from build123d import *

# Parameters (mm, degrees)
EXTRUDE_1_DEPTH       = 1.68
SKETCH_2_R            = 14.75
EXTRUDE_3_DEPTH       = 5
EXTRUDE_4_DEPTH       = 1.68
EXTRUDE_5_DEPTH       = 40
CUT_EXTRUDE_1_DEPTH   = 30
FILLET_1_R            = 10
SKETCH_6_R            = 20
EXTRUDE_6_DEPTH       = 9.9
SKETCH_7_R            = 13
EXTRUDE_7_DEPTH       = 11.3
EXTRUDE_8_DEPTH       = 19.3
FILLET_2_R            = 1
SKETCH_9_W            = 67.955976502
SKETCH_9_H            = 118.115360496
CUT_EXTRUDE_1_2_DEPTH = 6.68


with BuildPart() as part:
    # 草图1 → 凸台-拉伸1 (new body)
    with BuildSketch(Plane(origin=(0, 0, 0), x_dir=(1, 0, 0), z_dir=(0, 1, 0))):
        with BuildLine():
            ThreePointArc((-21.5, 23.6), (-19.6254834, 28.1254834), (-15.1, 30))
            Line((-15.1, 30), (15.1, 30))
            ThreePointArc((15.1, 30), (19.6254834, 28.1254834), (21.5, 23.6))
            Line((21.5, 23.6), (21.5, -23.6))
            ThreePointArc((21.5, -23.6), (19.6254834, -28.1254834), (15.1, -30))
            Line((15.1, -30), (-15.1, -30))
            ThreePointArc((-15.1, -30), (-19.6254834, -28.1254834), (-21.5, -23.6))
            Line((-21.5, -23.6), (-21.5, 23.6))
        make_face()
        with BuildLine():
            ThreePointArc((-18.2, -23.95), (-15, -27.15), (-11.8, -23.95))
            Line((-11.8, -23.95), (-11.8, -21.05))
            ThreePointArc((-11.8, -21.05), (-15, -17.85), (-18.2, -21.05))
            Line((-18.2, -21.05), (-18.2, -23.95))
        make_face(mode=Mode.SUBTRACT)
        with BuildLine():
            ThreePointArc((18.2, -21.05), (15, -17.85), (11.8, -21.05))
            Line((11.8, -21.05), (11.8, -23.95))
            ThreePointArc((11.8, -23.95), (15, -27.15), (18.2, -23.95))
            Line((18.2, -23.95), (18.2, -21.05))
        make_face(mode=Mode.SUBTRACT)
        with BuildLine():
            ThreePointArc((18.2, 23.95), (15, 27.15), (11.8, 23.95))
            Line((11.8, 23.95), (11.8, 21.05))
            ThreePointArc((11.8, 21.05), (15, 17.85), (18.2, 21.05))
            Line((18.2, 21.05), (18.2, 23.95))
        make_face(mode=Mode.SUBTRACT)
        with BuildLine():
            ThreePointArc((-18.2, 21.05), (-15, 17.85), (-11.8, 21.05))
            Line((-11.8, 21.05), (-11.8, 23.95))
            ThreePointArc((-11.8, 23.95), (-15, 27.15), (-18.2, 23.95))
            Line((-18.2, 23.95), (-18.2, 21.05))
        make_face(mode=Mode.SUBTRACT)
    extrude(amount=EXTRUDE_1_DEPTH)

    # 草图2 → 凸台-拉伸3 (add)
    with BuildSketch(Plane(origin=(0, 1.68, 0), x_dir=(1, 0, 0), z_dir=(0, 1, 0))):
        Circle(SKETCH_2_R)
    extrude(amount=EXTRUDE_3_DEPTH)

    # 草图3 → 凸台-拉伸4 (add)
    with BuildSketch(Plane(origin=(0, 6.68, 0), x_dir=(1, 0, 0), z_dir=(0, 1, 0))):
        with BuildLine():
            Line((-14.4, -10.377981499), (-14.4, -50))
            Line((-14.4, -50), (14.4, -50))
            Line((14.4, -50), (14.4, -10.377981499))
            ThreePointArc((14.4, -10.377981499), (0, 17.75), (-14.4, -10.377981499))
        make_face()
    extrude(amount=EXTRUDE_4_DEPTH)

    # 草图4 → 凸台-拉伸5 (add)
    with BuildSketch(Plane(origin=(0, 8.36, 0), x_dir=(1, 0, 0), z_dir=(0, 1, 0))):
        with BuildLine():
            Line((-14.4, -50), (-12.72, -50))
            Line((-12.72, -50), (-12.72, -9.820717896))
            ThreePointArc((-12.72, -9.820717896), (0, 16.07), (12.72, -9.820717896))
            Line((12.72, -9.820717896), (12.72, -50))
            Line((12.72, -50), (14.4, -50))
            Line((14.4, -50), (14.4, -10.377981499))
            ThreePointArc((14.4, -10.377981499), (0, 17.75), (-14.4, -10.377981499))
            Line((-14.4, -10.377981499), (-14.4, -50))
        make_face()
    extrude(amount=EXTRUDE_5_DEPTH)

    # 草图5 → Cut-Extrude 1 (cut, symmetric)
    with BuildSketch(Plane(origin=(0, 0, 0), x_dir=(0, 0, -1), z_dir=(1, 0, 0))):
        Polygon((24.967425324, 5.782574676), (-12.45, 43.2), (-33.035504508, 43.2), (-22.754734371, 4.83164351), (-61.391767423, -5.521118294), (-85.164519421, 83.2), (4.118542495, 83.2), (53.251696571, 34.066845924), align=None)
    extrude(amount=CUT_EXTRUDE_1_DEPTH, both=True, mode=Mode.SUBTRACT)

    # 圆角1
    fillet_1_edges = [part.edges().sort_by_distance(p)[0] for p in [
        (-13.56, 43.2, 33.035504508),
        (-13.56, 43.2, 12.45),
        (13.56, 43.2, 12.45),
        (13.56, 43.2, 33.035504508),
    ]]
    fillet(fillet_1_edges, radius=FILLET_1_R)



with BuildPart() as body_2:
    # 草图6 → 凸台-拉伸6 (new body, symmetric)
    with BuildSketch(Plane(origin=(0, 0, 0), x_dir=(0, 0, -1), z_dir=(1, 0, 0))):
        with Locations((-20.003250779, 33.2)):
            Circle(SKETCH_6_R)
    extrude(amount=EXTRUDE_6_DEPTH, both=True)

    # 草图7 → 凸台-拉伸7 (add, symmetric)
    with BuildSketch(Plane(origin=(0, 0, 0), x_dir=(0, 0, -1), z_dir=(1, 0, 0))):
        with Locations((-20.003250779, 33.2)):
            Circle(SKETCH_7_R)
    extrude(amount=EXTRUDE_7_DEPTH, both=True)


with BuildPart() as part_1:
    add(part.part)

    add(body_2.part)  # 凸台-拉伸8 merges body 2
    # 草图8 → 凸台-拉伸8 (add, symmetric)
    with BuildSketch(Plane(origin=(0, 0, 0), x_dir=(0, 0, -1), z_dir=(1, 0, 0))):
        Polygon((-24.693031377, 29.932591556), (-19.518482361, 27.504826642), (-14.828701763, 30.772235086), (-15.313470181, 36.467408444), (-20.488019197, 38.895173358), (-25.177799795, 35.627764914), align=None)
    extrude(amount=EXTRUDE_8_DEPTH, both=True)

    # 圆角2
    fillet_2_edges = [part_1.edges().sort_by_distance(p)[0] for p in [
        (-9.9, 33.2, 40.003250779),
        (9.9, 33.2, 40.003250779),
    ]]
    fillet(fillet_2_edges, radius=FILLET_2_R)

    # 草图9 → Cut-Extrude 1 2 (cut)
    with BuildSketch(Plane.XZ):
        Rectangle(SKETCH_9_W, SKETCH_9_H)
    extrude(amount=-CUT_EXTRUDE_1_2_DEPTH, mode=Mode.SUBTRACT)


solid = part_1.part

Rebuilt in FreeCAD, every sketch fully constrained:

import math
import FreeCAD as App
import Part
import Sketcher
Q = App.Units.Quantity


def edges_at(feature, points):
    """Names of the edges that pass closest to the given points."""
    edges = feature.Shape.Edges
    near = lambda p: min(range(len(edges)), key=lambda i: edges[i].distToShape(Part.Vertex(*p))[0])
    return sorted({f"Edge{near(p) + 1}" for p in points})


def add_polygon(sketch, points):
    """Adds a closed chain of lines whose ends are joined by coincident constraints."""
    first, n = sketch.GeometryCount, len(points)
    for a, b in zip(points, points[1:] + points[:1]):
        sketch.addGeometry(Part.LineSegment(App.Vector(*a, 0), App.Vector(*b, 0)), False)
    for i in range(n):
        sketch.addConstraint(Sketcher.Constraint("Coincident", first + i, 2, first + (i + 1) % n, 1))

doc = App.newDocument("Part")
params = doc.addObject("Spreadsheet::Sheet", "Params")
for row, (alias, value) in enumerate([
    ("sketch1_radius", "6.4 mm"),
    ("sketch1_radius2", "3.2 mm"),
    ("sketch1_width", "30.2 mm"),
    ("sketch1_height", "47.2 mm"),
    ("sketch1_height2", "2.9 mm"),
    ("pad1_length", "1.68 mm"),
    ("sketch2_diameter", "29.5 mm"),
    ("pad2_length", "5 mm"),
    ("sketch3_radius", "17.75 mm"),
    ("sketch3_width", "28.8 mm"),
    ("pad3_length", "1.68 mm"),
    ("sketch4_radius", "16.07 mm"),
    ("sketch4_radius2", "17.75 mm"),
    ("sketch4_width", "1.68 mm"),
    ("pad4_length", "40 mm"),
    ("sketch5_length", "40 mm"),
    ("pocket1_length", "60 mm"),
    ("fillet_radius", "10 mm"),
    ("sketch6_diameter", "40 mm"),
    ("pad5_length", "19.8 mm"),
    ("sketch7_diameter", "26 mm"),
    ("pad6_length", "22.6 mm"),
    ("pad7_length", "38.6 mm"),
    ("fillet2_radius", "1 mm"),
    ("pocket2_length", "6.68 mm"),
], start=1):
    params.set(f"A{row}", alias)
    params.set(f"B{row}", "=" + value)
    params.setAlias(f"B{row}", alias)

body = doc.addObject("PartDesign::Body", "Body")

sketch1 = body.newObject("Sketcher::SketchObject", "Sketch")
sketch1.AttachmentSupport = (doc.getObject("XZ_Plane"), [""])
sketch1.MapMode = "FlatFace"
sketch1.addGeometry(Part.ArcOfCircle(Part.Circle(App.Vector(-15.1, -23.6, 0), App.Vector(0, 0, 1), 6.4), math.radians(180), math.radians(270)), False)
sketch1.addGeometry(Part.LineSegment(App.Vector(-21.5, -23.6, 0), App.Vector(-21.5, 23.6, 0)), False)
sketch1.addGeometry(Part.ArcOfCircle(Part.Circle(App.Vector(-15.1, 23.6, 0), App.Vector(0, 0, 1), 6.4), math.radians(90), math.radians(180)), False)
sketch1.addGeometry(Part.LineSegment(App.Vector(-15.1, 30, 0), App.Vector(15.1, 30, 0)), False)
sketch1.addGeometry(Part.ArcOfCircle(Part.Circle(App.Vector(15.1, 23.6, 0), App.Vector(0, 0, 1), 6.4), math.radians(0), math.radians(90)), False)
sketch1.addGeometry(Part.LineSegment(App.Vector(21.5, 23.6, 0), App.Vector(21.5, -23.6, 0)), False)
sketch1.addGeometry(Part.ArcOfCircle(Part.Circle(App.Vector(15.1, -23.6, 0), App.Vector(0, 0, 1), 6.4), math.radians(-90), math.radians(0)), False)
sketch1.addGeometry(Part.LineSegment(App.Vector(15.1, -30, 0), App.Vector(-15.1, -30, 0)), False)
sketch1.addGeometry(Part.LineSegment(App.Vector(18.2, 21.1, 0), App.Vector(18.2, 23.9, 0)), False)
sketch1.addGeometry(Part.ArcOfCircle(Part.Circle(App.Vector(15, 23.9, 0), App.Vector(0, 0, 1), 3.2), math.radians(0), math.radians(180)), False)
sketch1.addGeometry(Part.LineSegment(App.Vector(11.8, 23.9, 0), App.Vector(11.8, 21.1, 0)), False)
sketch1.addGeometry(Part.ArcOfCircle(Part.Circle(App.Vector(15, 21.1, 0), App.Vector(0, 0, 1), 3.2), math.radians(180), math.radians(360)), False)
sketch1.addGeometry(Part.LineSegment(App.Vector(-18.2, 23.9, 0), App.Vector(-18.2, 21.1, 0)), False)
sketch1.addGeometry(Part.ArcOfCircle(Part.Circle(App.Vector(-15, 21.1, 0), App.Vector(0, 0, 1), 3.2), math.radians(180), math.radians(360)), False)
sketch1.addGeometry(Part.LineSegment(App.Vector(-11.8, 21.1, 0), App.Vector(-11.8, 23.9, 0)), False)
sketch1.addGeometry(Part.ArcOfCircle(Part.Circle(App.Vector(-15, 23.9, 0), App.Vector(0, 0, 1), 3.2), math.radians(0), math.radians(180)), False)
sketch1.addGeometry(Part.LineSegment(App.Vector(18.2, -23.9, 0), App.Vector(18.2, -21.1, 0)), False)
sketch1.addGeometry(Part.ArcOfCircle(Part.Circle(App.Vector(15, -21.1, 0), App.Vector(0, 0, 1), 3.2), math.radians(0), math.radians(180)), False)
sketch1.addGeometry(Part.LineSegment(App.Vector(11.8, -21.1, 0), App.Vector(11.8, -23.9, 0)), False)
sketch1.addGeometry(Part.ArcOfCircle(Part.Circle(App.Vector(15, -23.9, 0), App.Vector(0, 0, 1), 3.2), math.radians(180), math.radians(360)), False)
sketch1.addGeometry(Part.LineSegment(App.Vector(-18.2, -21.1, 0), App.Vector(-18.2, -23.9, 0)), False)
sketch1.addGeometry(Part.ArcOfCircle(Part.Circle(App.Vector(-15, -23.9, 0), App.Vector(0, 0, 1), 3.2), math.radians(180), math.radians(360)), False)
sketch1.addGeometry(Part.LineSegment(App.Vector(-11.8, -23.9, 0), App.Vector(-11.8, -21.1, 0)), False)
sketch1.addGeometry(Part.ArcOfCircle(Part.Circle(App.Vector(-15, -21.1, 0), App.Vector(0, 0, 1), 3.2), math.radians(0), math.radians(180)), False)
sketch1.addConstraint(Sketcher.Constraint("Tangent", 0, 1, 1, 1))
sketch1.addConstraint(Sketcher.Constraint("Tangent", 1, 2, 2, 2))
sketch1.addConstraint(Sketcher.Constraint("Tangent", 2, 1, 3, 1))
sketch1.addConstraint(Sketcher.Constraint("Tangent", 3, 2, 4, 2))
sketch1.addConstraint(Sketcher.Constraint("Tangent", 4, 1, 5, 1))
sketch1.addConstraint(Sketcher.Constraint("Tangent", 5, 2, 6, 2))
sketch1.addConstraint(Sketcher.Constraint("Tangent", 6, 1, 7, 1))
sketch1.addConstraint(Sketcher.Constraint("Tangent", 7, 2, 0, 2))
sketch1.addConstraint(Sketcher.Constraint("Tangent", 8, 2, 9, 1))
sketch1.addConstraint(Sketcher.Constraint("Tangent", 9, 2, 10, 1))
sketch1.addConstraint(Sketcher.Constraint("Tangent", 10, 2, 11, 1))
sketch1.addConstraint(Sketcher.Constraint("Tangent", 11, 2, 8, 1))
sketch1.addConstraint(Sketcher.Constraint("Tangent", 12, 2, 13, 1))
sketch1.addConstraint(Sketcher.Constraint("Tangent", 13, 2, 14, 1))
sketch1.addConstraint(Sketcher.Constraint("Tangent", 14, 2, 15, 1))
sketch1.addConstraint(Sketcher.Constraint("Tangent", 15, 2, 12, 1))
sketch1.addConstraint(Sketcher.Constraint("Tangent", 16, 2, 17, 1))
sketch1.addConstraint(Sketcher.Constraint("Tangent", 17, 2, 18, 1))
sketch1.addConstraint(Sketcher.Constraint("Tangent", 18, 2, 19, 1))
sketch1.addConstraint(Sketcher.Constraint("Tangent", 19, 2, 16, 1))
sketch1.addConstraint(Sketcher.Constraint("Tangent", 20, 2, 21, 1))
sketch1.addConstraint(Sketcher.Constraint("Tangent", 21, 2, 22, 1))
sketch1.addConstraint(Sketcher.Constraint("Tangent", 22, 2, 23, 1))
sketch1.addConstraint(Sketcher.Constraint("Tangent", 23, 2, 20, 1))
sketch1.addConstraint(Sketcher.Constraint("Vertical", 1))
sketch1.addConstraint(Sketcher.Constraint("Horizontal", 3))
sketch1.addConstraint(Sketcher.Constraint("Vertical", 5))
sketch1.addConstraint(Sketcher.Constraint("Horizontal", 7))
sketch1.addConstraint(Sketcher.Constraint("Vertical", 8))
sketch1.addConstraint(Sketcher.Constraint("Vertical", 10))
sketch1.addConstraint(Sketcher.Constraint("Vertical", 12))
sketch1.addConstraint(Sketcher.Constraint("Vertical", 14))
sketch1.addConstraint(Sketcher.Constraint("Vertical", 16))
sketch1.addConstraint(Sketcher.Constraint("Vertical", 18))
sketch1.addConstraint(Sketcher.Constraint("Vertical", 20))
sketch1.addConstraint(Sketcher.Constraint("Vertical", 22))
sketch1.addConstraint(Sketcher.Constraint("Equal", 0, 2))
sketch1.addConstraint(Sketcher.Constraint("Equal", 2, 4))
sketch1.addConstraint(Sketcher.Constraint("Equal", 4, 6))
sketch1.addConstraint(Sketcher.Constraint("Equal", 11, 13))
sketch1.addConstraint(Sketcher.Constraint("Equal", 15, 17))
sketch1.addConstraint(Sketcher.Constraint("Equal", 19, 21))
sketch1.addConstraint(Sketcher.Constraint("Symmetric", 0, 3, 4, 3, -1, 1))
sketch1.addConstraint(Sketcher.Constraint("Symmetric", 13, 3, 17, 3, -1, 1))
sketch1.addConstraint(Sketcher.Constraint("Symmetric", 9, 3, 21, 3, -1, 1))
sketch1.addConstraint(Sketcher.Constraint("Symmetric", 11, 3, 13, 3, -2))
sketch1.addConstraint(Sketcher.Constraint("Horizontal", 9, 3, 15, 3))
sketch1.addConstraint(Sketcher.Constraint("Horizontal", 19, 3, 21, 3))
sketch1.addConstraint(Sketcher.Constraint("Horizontal", 17, 3, 23, 3))
sketch1.addConstraint(Sketcher.Constraint("Radius", 0, 6.4))
sketch1.addConstraint(Sketcher.Constraint("Radius", 9, 3.2))
sketch1.addConstraint(Sketcher.Constraint("DistanceX", 3, 1, 3, 2, 30.2))
sketch1.addConstraint(Sketcher.Constraint("DistanceY", 1, 1, 1, 2, 47.2))
sketch1.addConstraint(Sketcher.Constraint("DistanceY", 8, 1, 8, 2, 2.9))
sketch1.addConstraint(Sketcher.Constraint("DistanceX", -1, 1, 9, 3, 15.0))
sketch1.addConstraint(Sketcher.Constraint("DistanceY", 17, 3, 9, 3, 45.0))
sketch1.setExpression("Constraints[49]", "Params.sketch1_radius")
sketch1.setExpression("Constraints[50]", "Params.sketch1_radius2")
sketch1.setExpression("Constraints[51]", "Params.sketch1_width")
sketch1.setExpression("Constraints[52]", "Params.sketch1_height")
sketch1.setExpression("Constraints[53]", "Params.sketch1_height2")
pad1 = body.newObject("PartDesign::Pad", "Pad")
pad1.Profile = sketch1
pad1.setExpression("Length", "Params.pad1_length")
pad1.Reversed = True

sketch2 = body.newObject("Sketcher::SketchObject", "Sketch001")
sketch2.AttachmentSupport = (doc.getObject("XZ_Plane"), [""])
sketch2.MapMode = "FlatFace"
sketch2.AttachmentOffset = App.Placement(App.Vector(0, 0, -1.68), App.Rotation())
sketch2.addGeometry(Part.Circle(App.Vector(0, 0, 0), App.Vector(0, 0, 1), 15), False)
sketch2.addConstraint(Sketcher.Constraint("Coincident", 0, 3, -1, 1))
sketch2.addConstraint(Sketcher.Constraint("Diameter", 0, 29.5))
sketch2.setExpression("Constraints[1]", "Params.sketch2_diameter")
pad2 = body.newObject("PartDesign::Pad", "Pad001")
pad2.Profile = sketch2
pad2.setExpression("Length", "Params.pad2_length")
pad2.Reversed = True

sketch3 = body.newObject("Sketcher::SketchObject", "Sketch002")
sketch3.AttachmentSupport = (doc.getObject("XZ_Plane"), [""])
sketch3.MapMode = "FlatFace"
sketch3.AttachmentOffset = App.Placement(App.Vector(0, 0, -6.68), App.Rotation())
sketch3.addGeometry(Part.LineSegment(App.Vector(-14, 10, 0), App.Vector(-14, 50, 0)), False)
sketch3.addGeometry(Part.LineSegment(App.Vector(-14, 50, 0), App.Vector(14, 50, 0)), False)
sketch3.addGeometry(Part.LineSegment(App.Vector(14, 50, 0), App.Vector(14, 10, 0)), False)
sketch3.addGeometry(Part.ArcOfCircle(Part.Circle(App.Vector(0, 0, 0), App.Vector(0, 0, 1), 18), math.radians(144), math.radians(396)), False)
sketch3.addConstraint(Sketcher.Constraint("Coincident", 0, 2, 1, 1))
sketch3.addConstraint(Sketcher.Constraint("Coincident", 1, 2, 2, 1))
sketch3.addConstraint(Sketcher.Constraint("Coincident", 2, 2, 3, 2))
sketch3.addConstraint(Sketcher.Constraint("Coincident", 3, 1, 0, 1))
sketch3.addConstraint(Sketcher.Constraint("Vertical", 0))
sketch3.addConstraint(Sketcher.Constraint("Horizontal", 1))
sketch3.addConstraint(Sketcher.Constraint("Vertical", 2))
sketch3.addConstraint(Sketcher.Constraint("Coincident", 3, 3, -1, 1))
sketch3.addConstraint(Sketcher.Constraint("Horizontal", 2, 2, 3, 1))
sketch3.addConstraint(Sketcher.Constraint("Radius", 3, 17.75))
sketch3.addConstraint(Sketcher.Constraint("DistanceX", 1, 1, 1, 2, 28.8))
sketch3.addConstraint(Sketcher.Constraint("DistanceY", -1, 1, 0, 2, 50.0))
sketch3.setExpression("Constraints[9]", "Params.sketch3_radius")
sketch3.setExpression("Constraints[10]", "Params.sketch3_width")
pad3 = body.newObject("PartDesign::Pad", "Pad002")
pad3.Profile = sketch3
pad3.setExpression("Length", "Params.pad3_length")
pad3.Reversed = True

sketch4 = body.newObject("Sketcher::SketchObject", "Sketch003")
sketch4.AttachmentSupport = (doc.getObject("XZ_Plane"), [""])
sketch4.MapMode = "FlatFace"
sketch4.AttachmentOffset = App.Placement(App.Vector(0, 0, -8.36), App.Rotation())
sketch4.addGeometry(Part.LineSegment(App.Vector(-14.4, 50, 0), App.Vector(-12.7, 50, 0)), False)
sketch4.addGeometry(Part.LineSegment(App.Vector(-12.7, 50, 0), App.Vector(-12.7, 9.8, 0)), False)
sketch4.addGeometry(Part.ArcOfCircle(Part.Circle(App.Vector(0, 0, 0), App.Vector(0, 0, 1), 16.1), math.radians(142), math.radians(398)), False)
sketch4.addGeometry(Part.LineSegment(App.Vector(12.7, 9.8, 0), App.Vector(12.7, 50, 0)), False)
sketch4.addGeometry(Part.LineSegment(App.Vector(12.7, 50, 0), App.Vector(14.4, 50, 0)), False)
sketch4.addGeometry(Part.LineSegment(App.Vector(14.4, 50, 0), App.Vector(14.4, 10.4, 0)), False)
sketch4.addGeometry(Part.ArcOfCircle(Part.Circle(App.Vector(0, 0, 0), App.Vector(0, 0, 1), 17.8), math.radians(144), math.radians(396)), False)
sketch4.addGeometry(Part.LineSegment(App.Vector(-14.4, 10.4, 0), App.Vector(-14.4, 50, 0)), False)
sketch4.addConstraint(Sketcher.Constraint("Coincident", 0, 2, 1, 1))
sketch4.addConstraint(Sketcher.Constraint("Coincident", 1, 2, 2, 1))
sketch4.addConstraint(Sketcher.Constraint("Coincident", 2, 2, 3, 1))
sketch4.addConstraint(Sketcher.Constraint("Coincident", 3, 2, 4, 1))
sketch4.addConstraint(Sketcher.Constraint("Coincident", 4, 2, 5, 1))
sketch4.addConstraint(Sketcher.Constraint("Coincident", 5, 2, 6, 2))
sketch4.addConstraint(Sketcher.Constraint("Coincident", 6, 1, 7, 1))
sketch4.addConstraint(Sketcher.Constraint("Coincident", 7, 2, 0, 1))
sketch4.addConstraint(Sketcher.Constraint("Horizontal", 0))
sketch4.addConstraint(Sketcher.Constraint("Vertical", 1))
sketch4.addConstraint(Sketcher.Constraint("Vertical", 3))
sketch4.addConstraint(Sketcher.Constraint("Horizontal", 4))
sketch4.addConstraint(Sketcher.Constraint("Vertical", 5))
sketch4.addConstraint(Sketcher.Constraint("Vertical", 7))
sketch4.addConstraint(Sketcher.Constraint("Coincident", 2, 3, -1, 1))
sketch4.addConstraint(Sketcher.Constraint("Coincident", 6, 3, -1, 1))
sketch4.addConstraint(Sketcher.Constraint("Symmetric", 0, 2, 3, 2, -2))
sketch4.addConstraint(Sketcher.Constraint("Horizontal", 5, 2, 6, 1))
sketch4.addConstraint(Sketcher.Constraint("Radius", 2, 16.07))
sketch4.addConstraint(Sketcher.Constraint("Radius", 6, 17.75))
sketch4.addConstraint(Sketcher.Constraint("DistanceY", -1, 1, 0, 2, 50.0))
sketch4.addConstraint(Sketcher.Constraint("DistanceX", 0, 1, 0, 2, 1.68))
sketch4.addConstraint(Sketcher.Constraint("DistanceX", -1, 1, 4, 2, 14.4))
sketch4.setExpression("Constraints[18]", "Params.sketch4_radius")
sketch4.setExpression("Constraints[19]", "Params.sketch4_radius2")
sketch4.setExpression("Constraints[21]", "Params.sketch4_width")
pad4 = body.newObject("PartDesign::Pad", "Pad003")
pad4.Profile = sketch4
pad4.setExpression("Length", "Params.pad4_length")
pad4.Reversed = True

sketch5 = body.newObject("Sketcher::SketchObject", "Sketch004")
sketch5.AttachmentSupport = (doc.getObject("YZ_Plane"), [""])
sketch5.MapMode = "FlatFace"
add_polygon(sketch5, [(43, 12), (6, -25), (34, -53), (83, -4), (83, 85), (-6, 61), (5, 23), (43, 33)])
sketch5.addConstraint(Sketcher.Constraint("Vertical", 3))
sketch5.addConstraint(Sketcher.Constraint("Vertical", 7))
sketch5.addConstraint(Sketcher.Constraint("Perpendicular", 0, 1))
sketch5.addConstraint(Sketcher.Constraint("Perpendicular", 1, 2))
sketch5.addConstraint(Sketcher.Constraint("Perpendicular", 4, 5))
sketch5.addConstraint(Sketcher.Constraint("Perpendicular", 5, 6))
sketch5.addConstraint(Sketcher.Constraint("Equal", 1, 5))
sketch5.addConstraint(Sketcher.Constraint("Angle", 0, Q("-135 deg")))
sketch5.addConstraint(Sketcher.Constraint("Angle", 4, Q("-165 deg")))
sketch5.addConstraint(Sketcher.Constraint("Distance", 1, 40.0))
sketch5.addConstraint(Sketcher.Constraint("DistanceX", 6, 2, 2, 2, 40.0))
sketch5.addConstraint(Sketcher.Constraint("DistanceX", -1, 1, 2, 2, 83.2))
sketch5.addConstraint(Sketcher.Constraint("DistanceY", -1, 1, 7, 2, 12.45))
sketch5.addConstraint(Sketcher.Constraint("DistanceY", 3, 1, 3, 2, 89.283062))
sketch5.addConstraint(Sketcher.Constraint("Distance", 0, 52.91623))
sketch5.addConstraint(Sketcher.Constraint("Distance", 4, 91.85086))
sketch5.setExpression("Constraints[17]", "Params.sketch5_length")
pocket1 = body.newObject("PartDesign::Pocket", "Pocket")
pocket1.Profile = sketch5
pocket1.setExpression("Length", "Params.pocket1_length")
pocket1.Midplane = True
doc.recompute()

fillet = body.newObject("PartDesign::Fillet", "Fillet")
fillet.Base = (pocket1, edges_at(pocket1, [
    (-13.56, 43.2, 33.036),
    (-13.56, 43.2, 12.45),
    (13.56, 43.2, 12.45),
    (13.56, 43.2, 33.036),
]))
fillet.setExpression("Radius", "Params.fillet_radius")
body2 = doc.addObject("PartDesign::Body", "Body001")

sketch6 = body2.newObject("Sketcher::SketchObject", "Sketch005")
sketch6.AttachmentSupport = (doc.getObject("YZ_Plane001"), [""])
sketch6.MapMode = "FlatFace"
sketch6.addGeometry(Part.Circle(App.Vector(33, 20, 0), App.Vector(0, 0, 1), 20), False)
sketch6.addConstraint(Sketcher.Constraint("Diameter", 0, 40.0))
sketch6.addConstraint(Sketcher.Constraint("DistanceX", -1, 1, 0, 3, 33.2))
sketch6.addConstraint(Sketcher.Constraint("DistanceY", -1, 1, 0, 3, 20.003251))
sketch6.setExpression("Constraints[0]", "Params.sketch6_diameter")
pad5 = body2.newObject("PartDesign::Pad", "Pad004")
pad5.Profile = sketch6
pad5.setExpression("Length", "Params.pad5_length")
pad5.Midplane = True

sketch7 = body2.newObject("Sketcher::SketchObject", "Sketch006")
sketch7.AttachmentSupport = (doc.getObject("YZ_Plane001"), [""])
sketch7.MapMode = "FlatFace"
sketch7.addGeometry(Part.Circle(App.Vector(33, 20, 0), App.Vector(0, 0, 1), 13), False)
sketch7.addConstraint(Sketcher.Constraint("Diameter", 0, 26.0))
sketch7.addConstraint(Sketcher.Constraint("DistanceX", -1, 1, 0, 3, 33.2))
sketch7.addConstraint(Sketcher.Constraint("DistanceY", -1, 1, 0, 3, 20.003251))
sketch7.setExpression("Constraints[0]", "Params.sketch7_diameter")
pad6 = body2.newObject("PartDesign::Pad", "Pad005")
pad6.Profile = sketch7
pad6.setExpression("Length", "Params.pad6_length")
pad6.Midplane = True
body.AllowCompound = True
doc.recompute()

boolean = body.newObject("PartDesign::Boolean", "Boolean")
boolean.Type = "Fuse"
boolean.addObjects([body2])

sketch8 = body.newObject("Sketcher::SketchObject", "Sketch007")
sketch8.AttachmentSupport = (doc.getObject("YZ_Plane"), [""])
sketch8.MapMode = "FlatFace"
add_polygon(sketch8, [(30, 25), (28, 20), (31, 15), (36, 15), (39, 20), (36, 25)])
sketch8.addConstraint(Sketcher.Constraint("Parallel", 0, 3))
sketch8.addConstraint(Sketcher.Constraint("Parallel", 1, 4))
sketch8.addConstraint(Sketcher.Constraint("Parallel", 2, 5))
sketch8.addConstraint(Sketcher.Constraint("Equal", 0, 1))
sketch8.addConstraint(Sketcher.Constraint("Equal", 1, 2))
sketch8.addConstraint(Sketcher.Constraint("Equal", 2, 3))
sketch8.addConstraint(Sketcher.Constraint("DistanceY", -1, 1, 1, 2, 14.828702))
sketch8.addConstraint(Sketcher.Constraint("DistanceY", -1, 1, 4, 2, 25.1778))
sketch8.addConstraint(Sketcher.Constraint("DistanceX", -1, 1, 2, 2, 36.467408))
sketch8.addConstraint(Sketcher.Constraint("DistanceY", -1, 1, 2, 2, 15.31347))
sketch8.addConstraint(Sketcher.Constraint("DistanceY", -1, 1, 3, 2, 20.488019))
sketch8.addConstraint(Sketcher.Constraint("DistanceX", -1, 1, 5, 2, 29.932592))
pad7 = body.newObject("PartDesign::Pad", "Pad006")
pad7.Profile = sketch8
pad7.setExpression("Length", "Params.pad7_length")
pad7.Midplane = True
doc.recompute()

fillet2 = body.newObject("PartDesign::Fillet", "Fillet001")
fillet2.Base = (pad7, edges_at(pad7, [(-9.9, 33.2, 40.003), (9.9, 33.2, 40.003)]))
fillet2.setExpression("Radius", "Params.fillet2_radius")

sketch9 = body.newObject("Sketcher::SketchObject", "Sketch008")
sketch9.AttachmentSupport = (doc.getObject("XZ_Plane"), [""])
sketch9.MapMode = "FlatFace"
add_polygon(sketch9, [(-34, 59), (-34, -59), (34, -59), (34, 59)])
sketch9.addConstraint(Sketcher.Constraint("Vertical", 0))
sketch9.addConstraint(Sketcher.Constraint("Horizontal", 1))
sketch9.addConstraint(Sketcher.Constraint("Vertical", 2))
sketch9.addConstraint(Sketcher.Constraint("Horizontal", 3))
sketch9.addConstraint(Sketcher.Constraint("Symmetric", 0, 2, 2, 2, -1, 1))
sketch9.addConstraint(Sketcher.Constraint("DistanceY", 0, 2, 0, 1, 118.11536))
sketch9.addConstraint(Sketcher.Constraint("DistanceX", 1, 1, 1, 2, 67.955977))
pocket2 = body.newObject("PartDesign::Pocket", "Pocket001")
pocket2.Profile = sketch9
pocket2.setExpression("Length", "Params.pocket2_length")

doc.recompute()
